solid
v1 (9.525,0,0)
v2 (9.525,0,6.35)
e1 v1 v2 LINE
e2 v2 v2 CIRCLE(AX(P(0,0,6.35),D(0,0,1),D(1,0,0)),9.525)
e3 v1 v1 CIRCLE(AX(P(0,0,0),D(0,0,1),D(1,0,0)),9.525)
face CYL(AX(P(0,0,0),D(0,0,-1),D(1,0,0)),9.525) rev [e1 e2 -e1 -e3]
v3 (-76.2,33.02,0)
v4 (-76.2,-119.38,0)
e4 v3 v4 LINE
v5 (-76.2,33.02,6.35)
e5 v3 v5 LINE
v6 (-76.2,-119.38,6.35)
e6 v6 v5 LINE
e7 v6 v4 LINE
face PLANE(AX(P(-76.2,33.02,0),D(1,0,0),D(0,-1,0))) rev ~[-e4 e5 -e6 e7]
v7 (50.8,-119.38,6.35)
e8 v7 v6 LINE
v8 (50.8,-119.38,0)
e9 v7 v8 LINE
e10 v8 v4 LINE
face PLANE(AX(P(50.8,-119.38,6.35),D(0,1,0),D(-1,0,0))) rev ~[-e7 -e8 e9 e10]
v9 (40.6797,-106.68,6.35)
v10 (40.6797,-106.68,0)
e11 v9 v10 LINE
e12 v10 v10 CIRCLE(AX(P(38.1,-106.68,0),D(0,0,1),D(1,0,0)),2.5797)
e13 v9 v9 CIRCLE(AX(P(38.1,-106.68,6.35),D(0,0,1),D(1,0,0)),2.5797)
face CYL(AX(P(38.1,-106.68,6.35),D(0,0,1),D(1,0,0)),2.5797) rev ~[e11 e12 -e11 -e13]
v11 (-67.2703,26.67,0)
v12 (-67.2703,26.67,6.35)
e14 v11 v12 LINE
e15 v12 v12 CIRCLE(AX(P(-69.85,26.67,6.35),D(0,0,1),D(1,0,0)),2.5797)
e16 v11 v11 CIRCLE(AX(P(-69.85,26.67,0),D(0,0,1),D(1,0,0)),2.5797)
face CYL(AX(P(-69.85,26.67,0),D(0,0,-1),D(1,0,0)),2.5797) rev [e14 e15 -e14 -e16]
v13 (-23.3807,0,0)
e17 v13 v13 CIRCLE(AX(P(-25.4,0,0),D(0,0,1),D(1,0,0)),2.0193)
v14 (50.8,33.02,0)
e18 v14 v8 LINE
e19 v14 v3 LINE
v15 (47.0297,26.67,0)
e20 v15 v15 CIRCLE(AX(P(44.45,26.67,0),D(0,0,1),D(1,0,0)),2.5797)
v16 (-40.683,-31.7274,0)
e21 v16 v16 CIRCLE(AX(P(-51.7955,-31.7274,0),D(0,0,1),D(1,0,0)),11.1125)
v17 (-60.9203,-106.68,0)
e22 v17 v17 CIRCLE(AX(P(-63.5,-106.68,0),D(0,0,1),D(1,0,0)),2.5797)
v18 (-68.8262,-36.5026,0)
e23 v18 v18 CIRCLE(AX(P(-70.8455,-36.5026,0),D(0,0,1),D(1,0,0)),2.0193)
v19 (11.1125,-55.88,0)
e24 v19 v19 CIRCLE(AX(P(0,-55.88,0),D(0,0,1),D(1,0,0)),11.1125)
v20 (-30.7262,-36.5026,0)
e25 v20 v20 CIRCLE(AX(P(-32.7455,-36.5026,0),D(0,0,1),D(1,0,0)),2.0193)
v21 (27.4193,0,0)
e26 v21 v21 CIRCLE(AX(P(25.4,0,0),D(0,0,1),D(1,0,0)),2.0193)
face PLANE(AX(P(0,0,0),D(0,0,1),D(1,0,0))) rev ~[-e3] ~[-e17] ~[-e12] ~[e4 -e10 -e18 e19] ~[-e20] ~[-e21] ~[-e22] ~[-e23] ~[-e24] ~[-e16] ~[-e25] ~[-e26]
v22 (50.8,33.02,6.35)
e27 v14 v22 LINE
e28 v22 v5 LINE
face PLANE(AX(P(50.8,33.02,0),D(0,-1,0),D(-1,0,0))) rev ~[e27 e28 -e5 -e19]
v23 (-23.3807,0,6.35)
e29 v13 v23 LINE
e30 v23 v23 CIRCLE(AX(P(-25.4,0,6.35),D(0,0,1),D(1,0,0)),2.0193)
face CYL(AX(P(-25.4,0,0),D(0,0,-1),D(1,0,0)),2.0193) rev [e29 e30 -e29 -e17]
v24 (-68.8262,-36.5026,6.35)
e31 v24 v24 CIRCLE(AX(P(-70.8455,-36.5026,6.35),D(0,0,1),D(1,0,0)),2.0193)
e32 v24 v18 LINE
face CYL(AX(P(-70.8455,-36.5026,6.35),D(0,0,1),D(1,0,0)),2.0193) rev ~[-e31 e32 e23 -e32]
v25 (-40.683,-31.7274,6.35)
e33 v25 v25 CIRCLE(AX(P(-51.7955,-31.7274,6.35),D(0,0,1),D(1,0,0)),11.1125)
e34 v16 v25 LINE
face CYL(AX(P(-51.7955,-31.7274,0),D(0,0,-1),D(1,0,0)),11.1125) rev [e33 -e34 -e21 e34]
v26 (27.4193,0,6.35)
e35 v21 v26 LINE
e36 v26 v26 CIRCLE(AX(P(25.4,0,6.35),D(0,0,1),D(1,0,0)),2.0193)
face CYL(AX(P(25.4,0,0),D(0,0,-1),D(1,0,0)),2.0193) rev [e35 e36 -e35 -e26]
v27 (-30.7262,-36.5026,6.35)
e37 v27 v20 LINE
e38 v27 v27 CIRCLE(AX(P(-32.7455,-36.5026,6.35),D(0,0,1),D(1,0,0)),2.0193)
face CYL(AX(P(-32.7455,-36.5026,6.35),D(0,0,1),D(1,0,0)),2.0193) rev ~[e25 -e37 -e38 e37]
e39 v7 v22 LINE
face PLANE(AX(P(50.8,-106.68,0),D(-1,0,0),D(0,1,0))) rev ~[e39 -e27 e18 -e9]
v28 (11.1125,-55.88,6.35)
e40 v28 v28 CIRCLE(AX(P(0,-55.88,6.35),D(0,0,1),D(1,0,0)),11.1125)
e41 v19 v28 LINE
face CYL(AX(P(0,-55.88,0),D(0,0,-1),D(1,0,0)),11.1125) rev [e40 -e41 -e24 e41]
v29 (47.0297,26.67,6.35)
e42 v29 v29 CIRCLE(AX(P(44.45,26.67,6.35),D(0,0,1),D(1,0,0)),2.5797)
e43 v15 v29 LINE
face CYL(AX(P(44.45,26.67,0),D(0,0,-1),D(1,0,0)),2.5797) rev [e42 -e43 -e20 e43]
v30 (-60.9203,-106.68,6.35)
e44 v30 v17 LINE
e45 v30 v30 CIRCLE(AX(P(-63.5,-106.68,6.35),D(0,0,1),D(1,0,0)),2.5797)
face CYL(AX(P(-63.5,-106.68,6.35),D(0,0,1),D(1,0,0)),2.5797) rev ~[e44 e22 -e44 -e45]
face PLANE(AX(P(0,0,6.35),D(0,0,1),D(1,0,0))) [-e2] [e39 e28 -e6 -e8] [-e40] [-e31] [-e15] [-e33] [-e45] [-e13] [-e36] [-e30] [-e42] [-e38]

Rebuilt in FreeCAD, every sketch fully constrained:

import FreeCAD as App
import Part
import Sketcher
Q = App.Units.Quantity

doc = App.newDocument("Part")
body = doc.addObject("PartDesign::Body", "Body")

sketch1 = body.newObject("Sketcher::SketchObject", "Sketch")
sketch1.AttachmentSupport = (doc.getObject("XY_Plane"), [""])
sketch1.MapMode = "FlatFace"
sketch1.addGeometry(Part.LineSegment(App.Vector(-76.2, -106.7, 0), App.Vector(50.8, -106.7, 0)), False)
sketch1.addGeometry(Part.LineSegment(App.Vector(50.8, -106.7, 0), App.Vector(50.8, 33, 0)), False)
sketch1.addGeometry(Part.LineSegment(App.Vector(50.8, 33, 0), App.Vector(-76.2, 33, 0)), False)
sketch1.addGeometry(Part.LineSegment(App.Vector(-76.2, 33, 0), App.Vector(-76.2, -106.7, 0)), False)
sketch1.addGeometry(Part.Circle(App.Vector(0, -55.9, 0), App.Vector(0, 0, 1), 11.1), False)
sketch1.addGeometry(Part.Circle(App.Vector(-51.8, -31.7, 0), App.Vector(0, 0, 1), 11.1), False)
sketch1.addGeometry(Part.Circle(App.Vector(-69.8, 26.7, 0), App.Vector(0, 0, 1), 2.6), False)
sketch1.addGeometry(Part.Circle(App.Vector(-25.4, 0, 0), App.Vector(0, 0, 1), 2), False)
sketch1.addGeometry(Part.Circle(App.Vector(0, 0, 0), App.Vector(0, 0, 1), 9.5), False)
sketch1.addGeometry(Part.Circle(App.Vector(25.4, 0, 0), App.Vector(0, 0, 1), 2), False)
sketch1.addGeometry(Part.Circle(App.Vector(44.5, 26.7, 0), App.Vector(0, 0, 1), 2.6), False)
sketch1.addConstraint(Sketcher.Constraint("Coincident", 0, 2, 1, 1))
sketch1.addConstraint(Sketcher.Constraint("Coincident", 1, 2, 2, 1))
sketch1.addConstraint(Sketcher.Constraint("Coincident", 2, 2, 3, 1))
sketch1.addConstraint(Sketcher.Constraint("Coincident", 3, 2, 0, 1))
sketch1.addConstraint(Sketcher.Constraint("Horizontal", 0))
sketch1.addConstraint(Sketcher.Constraint("Vertical", 1))
sketch1.addConstraint(Sketcher.Constraint("Horizontal", 2))
sketch1.addConstraint(Sketcher.Constraint("Vertical", 3))
sketch1.addConstraint(Sketcher.Constraint("Coincident", 8, 3, -1, 1))
sketch1.addConstraint(Sketcher.Constraint("Equal", 4, 5))
sketch1.addConstraint(Sketcher.Constraint("Equal", 7, 9))
sketch1.addConstraint(Sketcher.Constraint("Equal", 6, 10))
sketch1.addConstraint(Sketcher.Constraint("Symmetric", 7, 3, 9, 3, -1, 1))
sketch1.addConstraint(Sketcher.Constraint("PointOnObject", 4, 3, -2))
sketch1.addConstraint(Sketcher.Constraint("PointOnObject", 7, 3, -1))
sketch1.addConstraint(Sketcher.Constraint("Horizontal", 6, 3, 10, 3))
sketch1.addConstraint(Sketcher.Constraint("Diameter", 8, Q("0.75 in")))
sketch1.addConstraint(Sketcher.Constraint("DistanceX", 0, 1, 0, 2, Q("5 in")))
sketch1.addConstraint(Sketcher.Constraint("Diameter", 4, Q("0.875 in")))
sketch1.addConstraint(Sketcher.Constraint("Diameter", 6, Q("0.203126 in")))
sketch1.addConstraint(Sketcher.Constraint("Diameter", 7, Q("0.159 in")))
sketch1.addConstraint(Sketcher.Constraint("DistanceY", 1, 1, 1, 2, Q("5.5 in")))
sketch1.addConstraint(Sketcher.Constraint("DistanceX", 7, 3, -1, 1, Q("1 in")))
sketch1.addConstraint(Sketcher.Constraint("DistanceX", -1, 1, 0, 2, Q("2 in")))
sketch1.addConstraint(Sketcher.Constraint("DistanceY", 0, 2, 4, 3, Q("2 in")))
sketch1.addConstraint(Sketcher.Constraint("DistanceY", 4, 3, -1, 1, Q("2.2 in")))
sketch1.addConstraint(Sketcher.Constraint("DistanceX", 9, 3, 10, 3, Q("0.75 in")))
sketch1.addConstraint(Sketcher.Constraint("DistanceY", 10, 3, 1, 2, Q("0.25 in")))
sketch1.addConstraint(Sketcher.Constraint("DistanceX", 2, 2, 6, 3, Q("0.25 in")))
sketch1.addConstraint(Sketcher.Constraint("DistanceX", 5, 3, -1, 1, Q("2.0392 in")))
sketch1.addConstraint(Sketcher.Constraint("DistanceY", 5, 3, -1, 1, Q("1.2491 in")))
pad1 = body.newObject("PartDesign::Pad", "Pad")
pad1.Profile = sketch1
pad1.Length = Q("0.25 in")

sketch2 = body.newObject("Sketcher::SketchObject", "Sketch001")
sketch2.AttachmentSupport = (doc.getObject("XY_Plane"), [""])
sketch2.MapMode = "FlatFace"
sketch2.AttachmentOffset = App.Placement(App.Vector(0, 0, 0.25 * 25.4), App.Rotation())
sketch2.addGeometry(Part.LineSegment(App.Vector(51, -107, 0), App.Vector(-76, -107, 0)), False)
sketch2.addGeometry(Part.LineSegment(App.Vector(-76, -107, 0), App.Vector(-76, -119, 0)), False)
sketch2.addGeometry(Part.LineSegment(App.Vector(-76, -119, 0), App.Vector(51, -119, 0)), False)
sketch2.addGeometry(Part.LineSegment(App.Vector(51, -119, 0), App.Vector(51, -107, 0)), False)
sketch2.addConstraint(Sketcher.Constraint("Coincident", 0, 2, 1, 1))
sketch2.addConstraint(Sketcher.Constraint("Coincident", 1, 2, 2, 1))
sketch2.addConstraint(Sketcher.Constraint("Coincident", 2, 2, 3, 1))
sketch2.addConstraint(Sketcher.Constraint("Coincident", 3, 2, 0, 1))
sketch2.addConstraint(Sketcher.Constraint("Horizontal", 0))
sketch2.addConstraint(Sketcher.Constraint("Vertical", 1))
sketch2.addConstraint(Sketcher.Constraint("Horizontal", 2))
sketch2.addConstraint(Sketcher.Constraint("Vertical", 3))
sketch2.addConstraint(Sketcher.Constraint("DistanceX", 0, 2, 0, 1, Q("5 in")))
sketch2.addConstraint(Sketcher.Constraint("DistanceY", 1, 2, 1, 1, Q("0.5 in")))
sketch2.addConstraint(Sketcher.Constraint("DistanceX", 0, 2, -1, 1, Q("3 in")))
sketch2.addConstraint(Sketcher.Constraint("DistanceY", 0, 2, -1, 1, Q("4.2 in")))
pad2 = body.newObject("PartDesign::Pad", "Pad001")
pad2.Profile = sketch2
pad2.Length = Q("0.25 in")
pad2.Reversed = True

sketch3 = body.newObject("Sketcher::SketchObject", "Sketch002")
sketch3.AttachmentSupport = (doc.getObject("XY_Plane"), [""])
sketch3.MapMode = "FlatFace"
sketch3.AttachmentOffset = App.Placement(App.Vector(0, 0, 0.25 * 25.4), App.Rotation())
sketch3.addGeometry(Part.Circle(App.Vector(38.1, -106.7, 0), App.Vector(0, 0, 1), 2.6), False)
sketch3.addGeometry(Part.Circle(App.Vector(-63.5, -106.7, 0), App.Vector(0, 0, 1), 2.6), False)
sketch3.addConstraint(Sketcher.Constraint("Equal", 0, 1))
sketch3.addConstraint(Sketcher.Constraint("Horizontal", 0, 3, 1, 3))
sketch3.addConstraint(Sketcher.Constraint("Diameter", 0, Q("0.203126 in")))
sketch3.addConstraint(Sketcher.Constraint("DistanceX", 1, 3, 0, 3, Q("4 in")))
sketch3.addConstraint(Sketcher.Constraint("DistanceX", -1, 1, 0, 3, Q("1.5 in")))
sketch3.addConstraint(Sketcher.Constraint("DistanceY", 0, 3, -1, 1, Q("4.2 in")))
pocket1 = body.newObject("PartDesign::Pocket", "Pocket")
pocket1.Profile = sketch3
pocket1.Length = Q("0.25 in")

sketch4 = body.newObject("Sketcher::SketchObject", "Sketch003")
sketch4.AttachmentSupport = (doc.getObject("XY_Plane"), [""])
sketch4.MapMode = "FlatFace"
sketch4.AttachmentOffset = App.Placement(App.Vector(0, 0, 0.25 * 25.4), App.Rotation())
sketch4.addGeometry(Part.Circle(App.Vector(-32.7, -36.5, 0), App.Vector(0, 0, 1), 2), False)
sketch4.addGeometry(Part.Circle(App.Vector(-70.8, -36.5, 0), App.Vector(0, 0, 1), 2), False)
sketch4.addConstraint(Sketcher.Constraint("Equal", 0, 1))
sketch4.addConstraint(Sketcher.Constraint("Horizontal", 0, 3, 1, 3))
sketch4.addConstraint(Sketcher.Constraint("Diameter", 0, Q("0.159 in")))
sketch4.addConstraint(Sketcher.Constraint("DistanceX", 1, 3, 0, 3, Q("1.5 in")))
sketch4.addConstraint(Sketcher.Constraint("DistanceX", 0, 3, -1, 1, Q("1.2892 in")))
sketch4.addConstraint(Sketcher.Constraint("DistanceY", 0, 3, -1, 1, Q("1.4371 in")))
pocket2 = body.newObject("PartDesign::Pocket", "Pocket001")
pocket2.Profile = sketch4
pocket2.Length = Q("0.25 in")

doc.recompute()
